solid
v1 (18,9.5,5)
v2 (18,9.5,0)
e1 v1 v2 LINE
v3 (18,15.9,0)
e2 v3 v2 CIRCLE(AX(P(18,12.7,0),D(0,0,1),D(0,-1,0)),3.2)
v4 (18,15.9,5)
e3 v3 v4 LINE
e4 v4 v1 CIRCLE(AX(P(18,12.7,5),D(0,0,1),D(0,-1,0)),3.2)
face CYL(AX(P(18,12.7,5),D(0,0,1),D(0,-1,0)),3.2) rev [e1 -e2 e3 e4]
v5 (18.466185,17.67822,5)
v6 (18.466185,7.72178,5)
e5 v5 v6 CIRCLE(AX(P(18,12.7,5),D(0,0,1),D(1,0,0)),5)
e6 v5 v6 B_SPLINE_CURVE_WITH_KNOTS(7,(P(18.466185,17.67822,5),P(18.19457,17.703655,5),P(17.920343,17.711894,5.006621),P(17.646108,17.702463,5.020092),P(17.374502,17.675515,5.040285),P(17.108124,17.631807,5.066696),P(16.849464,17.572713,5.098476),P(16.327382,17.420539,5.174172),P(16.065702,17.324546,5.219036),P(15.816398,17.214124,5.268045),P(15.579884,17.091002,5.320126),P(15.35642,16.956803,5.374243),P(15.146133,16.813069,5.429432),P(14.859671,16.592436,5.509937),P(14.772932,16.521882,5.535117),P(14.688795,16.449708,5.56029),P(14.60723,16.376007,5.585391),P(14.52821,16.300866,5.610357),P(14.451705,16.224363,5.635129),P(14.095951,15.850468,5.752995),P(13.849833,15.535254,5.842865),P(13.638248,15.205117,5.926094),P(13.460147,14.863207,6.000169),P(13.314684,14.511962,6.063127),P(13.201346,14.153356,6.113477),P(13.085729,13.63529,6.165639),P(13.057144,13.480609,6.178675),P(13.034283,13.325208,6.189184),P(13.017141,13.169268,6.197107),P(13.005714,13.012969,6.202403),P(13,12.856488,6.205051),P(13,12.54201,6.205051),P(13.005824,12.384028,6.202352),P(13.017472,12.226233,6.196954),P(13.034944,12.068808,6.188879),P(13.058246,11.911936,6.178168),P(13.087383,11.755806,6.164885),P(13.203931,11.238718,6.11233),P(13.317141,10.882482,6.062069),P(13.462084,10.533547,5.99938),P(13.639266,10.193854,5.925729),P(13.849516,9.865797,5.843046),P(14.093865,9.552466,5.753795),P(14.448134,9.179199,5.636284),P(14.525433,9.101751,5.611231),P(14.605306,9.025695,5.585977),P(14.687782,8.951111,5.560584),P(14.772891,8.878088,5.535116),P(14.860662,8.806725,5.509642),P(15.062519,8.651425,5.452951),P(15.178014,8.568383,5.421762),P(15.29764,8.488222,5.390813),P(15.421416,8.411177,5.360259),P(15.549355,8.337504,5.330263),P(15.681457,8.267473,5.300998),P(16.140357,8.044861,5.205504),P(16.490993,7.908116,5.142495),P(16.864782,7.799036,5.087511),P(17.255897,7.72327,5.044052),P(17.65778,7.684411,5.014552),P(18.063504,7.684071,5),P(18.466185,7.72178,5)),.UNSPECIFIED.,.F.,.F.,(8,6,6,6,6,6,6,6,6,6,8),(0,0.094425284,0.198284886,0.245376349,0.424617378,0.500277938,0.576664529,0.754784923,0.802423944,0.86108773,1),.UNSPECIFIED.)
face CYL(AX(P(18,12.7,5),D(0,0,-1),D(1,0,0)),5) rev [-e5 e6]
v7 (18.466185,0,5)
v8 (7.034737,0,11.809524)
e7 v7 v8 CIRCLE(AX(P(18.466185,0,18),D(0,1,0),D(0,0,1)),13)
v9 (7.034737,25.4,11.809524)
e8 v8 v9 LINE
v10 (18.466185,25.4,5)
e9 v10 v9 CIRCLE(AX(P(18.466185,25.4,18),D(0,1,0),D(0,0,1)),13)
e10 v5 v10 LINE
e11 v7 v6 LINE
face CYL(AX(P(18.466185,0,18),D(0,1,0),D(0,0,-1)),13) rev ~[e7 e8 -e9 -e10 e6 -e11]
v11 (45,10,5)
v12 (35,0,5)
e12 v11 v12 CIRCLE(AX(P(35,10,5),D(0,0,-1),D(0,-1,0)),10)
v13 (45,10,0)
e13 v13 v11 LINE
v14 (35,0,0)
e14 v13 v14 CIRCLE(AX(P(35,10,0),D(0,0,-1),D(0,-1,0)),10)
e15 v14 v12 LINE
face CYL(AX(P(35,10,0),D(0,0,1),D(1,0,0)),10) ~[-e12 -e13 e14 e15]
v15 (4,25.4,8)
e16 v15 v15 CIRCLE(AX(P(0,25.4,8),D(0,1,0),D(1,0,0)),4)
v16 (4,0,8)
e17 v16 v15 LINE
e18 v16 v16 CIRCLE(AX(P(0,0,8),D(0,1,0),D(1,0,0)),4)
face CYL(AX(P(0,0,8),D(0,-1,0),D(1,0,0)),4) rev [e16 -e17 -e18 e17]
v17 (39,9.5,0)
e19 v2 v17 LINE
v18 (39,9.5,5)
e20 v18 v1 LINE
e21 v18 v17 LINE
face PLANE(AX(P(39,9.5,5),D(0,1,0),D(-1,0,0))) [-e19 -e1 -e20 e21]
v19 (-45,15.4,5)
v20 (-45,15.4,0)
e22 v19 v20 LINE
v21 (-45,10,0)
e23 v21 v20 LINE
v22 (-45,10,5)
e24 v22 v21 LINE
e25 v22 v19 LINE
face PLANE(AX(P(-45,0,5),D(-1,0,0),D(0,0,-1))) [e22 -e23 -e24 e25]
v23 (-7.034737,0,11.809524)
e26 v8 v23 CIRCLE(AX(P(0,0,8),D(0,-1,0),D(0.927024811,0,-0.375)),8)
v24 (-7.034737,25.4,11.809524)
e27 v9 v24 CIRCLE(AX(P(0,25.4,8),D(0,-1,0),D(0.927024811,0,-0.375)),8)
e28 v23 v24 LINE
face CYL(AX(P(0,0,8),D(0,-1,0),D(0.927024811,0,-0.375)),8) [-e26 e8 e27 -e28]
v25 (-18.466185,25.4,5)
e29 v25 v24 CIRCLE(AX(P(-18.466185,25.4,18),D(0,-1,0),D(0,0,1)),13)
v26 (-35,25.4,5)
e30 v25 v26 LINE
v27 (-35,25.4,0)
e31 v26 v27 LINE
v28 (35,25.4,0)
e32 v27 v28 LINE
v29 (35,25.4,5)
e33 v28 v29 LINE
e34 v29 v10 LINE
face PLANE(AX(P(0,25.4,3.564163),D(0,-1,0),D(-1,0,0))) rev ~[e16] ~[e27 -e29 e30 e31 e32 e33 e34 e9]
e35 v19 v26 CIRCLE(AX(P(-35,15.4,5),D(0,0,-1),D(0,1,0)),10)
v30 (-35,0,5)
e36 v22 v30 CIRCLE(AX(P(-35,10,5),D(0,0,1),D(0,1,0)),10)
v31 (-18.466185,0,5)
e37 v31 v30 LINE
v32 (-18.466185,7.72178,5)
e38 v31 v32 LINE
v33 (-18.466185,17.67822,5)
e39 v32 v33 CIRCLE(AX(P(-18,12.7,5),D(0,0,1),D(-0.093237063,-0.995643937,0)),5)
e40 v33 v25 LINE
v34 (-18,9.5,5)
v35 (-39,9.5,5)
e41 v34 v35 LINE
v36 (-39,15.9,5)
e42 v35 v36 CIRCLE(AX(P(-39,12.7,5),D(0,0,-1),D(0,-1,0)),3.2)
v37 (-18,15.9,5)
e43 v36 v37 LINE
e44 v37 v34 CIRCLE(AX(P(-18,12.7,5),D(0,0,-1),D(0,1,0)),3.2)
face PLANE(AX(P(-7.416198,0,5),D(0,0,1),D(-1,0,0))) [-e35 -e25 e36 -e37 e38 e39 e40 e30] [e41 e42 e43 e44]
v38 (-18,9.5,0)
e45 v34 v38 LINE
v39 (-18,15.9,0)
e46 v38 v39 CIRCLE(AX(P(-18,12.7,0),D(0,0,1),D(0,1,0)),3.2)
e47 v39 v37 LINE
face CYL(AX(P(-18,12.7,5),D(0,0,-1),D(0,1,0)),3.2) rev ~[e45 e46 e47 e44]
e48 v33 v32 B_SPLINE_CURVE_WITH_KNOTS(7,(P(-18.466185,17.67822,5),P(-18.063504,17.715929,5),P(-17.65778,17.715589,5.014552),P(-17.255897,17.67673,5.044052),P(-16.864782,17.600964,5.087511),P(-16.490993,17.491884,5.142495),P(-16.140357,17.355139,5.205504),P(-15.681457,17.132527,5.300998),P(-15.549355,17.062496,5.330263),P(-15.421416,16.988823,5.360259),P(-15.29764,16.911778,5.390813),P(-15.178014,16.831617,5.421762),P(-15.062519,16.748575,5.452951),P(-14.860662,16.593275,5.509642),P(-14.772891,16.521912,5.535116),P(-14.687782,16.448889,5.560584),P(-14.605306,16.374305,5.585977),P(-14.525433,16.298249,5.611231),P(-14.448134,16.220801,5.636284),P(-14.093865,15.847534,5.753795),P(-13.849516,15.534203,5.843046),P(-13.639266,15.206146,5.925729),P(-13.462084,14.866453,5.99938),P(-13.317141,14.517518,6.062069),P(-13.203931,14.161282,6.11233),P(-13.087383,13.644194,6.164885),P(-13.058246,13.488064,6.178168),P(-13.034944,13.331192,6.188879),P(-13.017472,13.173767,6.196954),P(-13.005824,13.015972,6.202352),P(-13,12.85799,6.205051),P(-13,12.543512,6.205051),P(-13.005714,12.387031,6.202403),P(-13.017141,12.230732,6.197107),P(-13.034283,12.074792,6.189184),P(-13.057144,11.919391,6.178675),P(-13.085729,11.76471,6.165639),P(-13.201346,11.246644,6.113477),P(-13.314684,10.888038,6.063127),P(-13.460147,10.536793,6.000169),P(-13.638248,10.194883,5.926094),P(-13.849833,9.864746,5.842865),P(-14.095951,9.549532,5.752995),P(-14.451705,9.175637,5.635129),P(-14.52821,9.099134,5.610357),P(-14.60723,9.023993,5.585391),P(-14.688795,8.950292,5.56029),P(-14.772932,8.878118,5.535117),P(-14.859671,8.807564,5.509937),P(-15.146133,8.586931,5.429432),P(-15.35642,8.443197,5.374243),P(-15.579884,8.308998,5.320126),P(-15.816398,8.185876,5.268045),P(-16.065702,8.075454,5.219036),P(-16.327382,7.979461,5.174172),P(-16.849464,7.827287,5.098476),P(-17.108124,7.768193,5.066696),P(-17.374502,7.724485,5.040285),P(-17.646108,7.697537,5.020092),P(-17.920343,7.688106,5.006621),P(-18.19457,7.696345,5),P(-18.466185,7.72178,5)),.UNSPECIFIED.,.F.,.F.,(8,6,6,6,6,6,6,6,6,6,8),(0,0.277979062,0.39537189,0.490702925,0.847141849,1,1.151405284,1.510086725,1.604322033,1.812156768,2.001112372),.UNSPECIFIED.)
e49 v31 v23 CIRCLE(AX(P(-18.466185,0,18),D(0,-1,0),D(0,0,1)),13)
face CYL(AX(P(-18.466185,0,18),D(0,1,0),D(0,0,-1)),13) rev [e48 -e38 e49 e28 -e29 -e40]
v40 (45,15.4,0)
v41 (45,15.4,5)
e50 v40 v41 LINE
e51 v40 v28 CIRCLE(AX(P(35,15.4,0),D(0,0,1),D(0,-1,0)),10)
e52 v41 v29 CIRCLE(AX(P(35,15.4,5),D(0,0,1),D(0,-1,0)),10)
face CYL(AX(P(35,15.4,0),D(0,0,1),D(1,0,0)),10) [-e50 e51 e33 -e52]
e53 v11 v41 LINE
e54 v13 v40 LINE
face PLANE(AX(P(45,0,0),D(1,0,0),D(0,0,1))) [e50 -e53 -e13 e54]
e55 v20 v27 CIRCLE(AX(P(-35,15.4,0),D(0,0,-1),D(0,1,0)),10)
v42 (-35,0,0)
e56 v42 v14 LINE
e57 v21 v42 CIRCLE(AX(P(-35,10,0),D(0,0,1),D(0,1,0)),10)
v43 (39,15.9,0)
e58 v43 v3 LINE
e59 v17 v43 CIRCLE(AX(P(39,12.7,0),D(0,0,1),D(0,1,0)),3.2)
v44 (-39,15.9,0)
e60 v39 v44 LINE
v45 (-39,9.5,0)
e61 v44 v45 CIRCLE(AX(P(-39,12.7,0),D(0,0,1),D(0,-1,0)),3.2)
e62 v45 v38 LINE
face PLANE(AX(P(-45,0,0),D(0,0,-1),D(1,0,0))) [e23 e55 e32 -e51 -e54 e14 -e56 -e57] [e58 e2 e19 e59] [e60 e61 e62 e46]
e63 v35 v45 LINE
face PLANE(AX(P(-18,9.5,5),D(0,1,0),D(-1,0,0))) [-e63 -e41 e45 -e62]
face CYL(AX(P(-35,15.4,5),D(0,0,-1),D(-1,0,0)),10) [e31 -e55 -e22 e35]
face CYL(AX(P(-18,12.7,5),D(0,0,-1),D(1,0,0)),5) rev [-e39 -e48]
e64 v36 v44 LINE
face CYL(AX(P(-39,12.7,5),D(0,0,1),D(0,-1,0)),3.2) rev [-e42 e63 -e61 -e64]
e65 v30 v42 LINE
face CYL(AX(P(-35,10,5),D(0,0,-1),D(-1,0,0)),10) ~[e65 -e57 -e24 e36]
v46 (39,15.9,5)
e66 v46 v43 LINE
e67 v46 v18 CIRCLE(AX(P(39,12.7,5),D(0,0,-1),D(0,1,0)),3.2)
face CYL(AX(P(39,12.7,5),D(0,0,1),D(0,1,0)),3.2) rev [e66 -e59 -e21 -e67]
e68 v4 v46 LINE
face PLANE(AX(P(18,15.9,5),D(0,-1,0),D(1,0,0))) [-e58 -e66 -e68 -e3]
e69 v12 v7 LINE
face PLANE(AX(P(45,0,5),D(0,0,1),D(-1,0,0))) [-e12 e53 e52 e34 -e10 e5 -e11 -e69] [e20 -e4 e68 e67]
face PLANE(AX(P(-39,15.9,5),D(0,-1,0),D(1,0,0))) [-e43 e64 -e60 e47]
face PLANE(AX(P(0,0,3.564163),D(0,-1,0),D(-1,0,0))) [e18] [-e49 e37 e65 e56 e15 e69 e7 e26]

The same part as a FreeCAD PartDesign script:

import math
import FreeCAD as App
import Part
import Sketcher
from FreeCAD import Vector
Q = App.Units.Quantity


def edges_at(feature, points):
    """Names of the edges that pass closest to the given points."""
    edges = feature.Shape.Edges
    near = lambda p: min(range(len(edges)), key=lambda i: edges[i].distToShape(Part.Vertex(*p))[0])
    return sorted({f"Edge{near(p) + 1}" for p in points})

doc = App.newDocument("Part")
body = doc.addObject("PartDesign::Body", "Body")

sketch1 = doc.addObject("Sketcher::SketchObject", "Sketch")
body.addObject(sketch1)
sketch1.AttachmentSupport = (doc.XZ_Plane, [""])
sketch1.MapMode = "FlatFace"
sketch1.addGeometry(Part.LineSegment(Vector(45, 0, 0), Vector(-45, 0, 0)), False)
sketch1.addGeometry(Part.LineSegment(Vector(-45, 0, 0), Vector(-45, 5, 0)), False)
sketch1.addGeometry(Part.LineSegment(Vector(-45, 5, 0), Vector(-7.4, 5, 0)), False)
sketch1.addGeometry(Part.ArcOfCircle(Part.Circle(Vector(0, 8, 0), Vector(0, 0, 1), 8), math.radians(-22), math.radians(202)), False)
sketch1.addGeometry(Part.LineSegment(Vector(7.4, 5, 0), Vector(45, 5, 0)), False)
sketch1.addGeometry(Part.LineSegment(Vector(45, 5, 0), Vector(45, 0, 0)), False)
sketch1.addGeometry(Part.Circle(Vector(0, 8, 0), Vector(0, 0, 1), 4), False)
sketch1.addConstraint(Sketcher.Constraint("Coincident", 0, 2, 1, 1))
sketch1.addConstraint(Sketcher.Constraint("Coincident", 1, 2, 2, 1))
sketch1.addConstraint(Sketcher.Constraint("Coincident", 2, 2, 3, 2))
sketch1.addConstraint(Sketcher.Constraint("Coincident", 3, 1, 4, 1))
sketch1.addConstraint(Sketcher.Constraint("Coincident", 4, 2, 5, 1))
sketch1.addConstraint(Sketcher.Constraint("Coincident", 5, 2, 0, 1))
sketch1.addConstraint(Sketcher.Constraint("Horizontal", 0))
sketch1.addConstraint(Sketcher.Constraint("Vertical", 1))
sketch1.addConstraint(Sketcher.Constraint("Horizontal", 2))
sketch1.addConstraint(Sketcher.Constraint("Horizontal", 4))
sketch1.addConstraint(Sketcher.Constraint("Vertical", 5))
sketch1.addConstraint(Sketcher.Constraint("Coincident", 6, 3, 3, 3))
sketch1.addConstraint(Sketcher.Constraint("Symmetric", 0, 2, 5, 2, -1, 1))
sketch1.addConstraint(Sketcher.Constraint("Symmetric", 2, 2, 3, 1, -2))
sketch1.addConstraint(Sketcher.Constraint("Diameter", 6, Q("8 mm")))
sketch1.addConstraint(Sketcher.Constraint("Radius", 3, Q("8 mm")))
sketch1.addConstraint(Sketcher.Constraint("DistanceX", 0, 2, 0, 1, Q("90 mm")))
sketch1.addConstraint(Sketcher.Constraint("DistanceY", 1, 1, 1, 2, Q("5 mm")))
sketch1.addConstraint(Sketcher.Constraint("DistanceY", -1, 1, 3, 3, Q("8 mm")))
pad1 = doc.addObject("PartDesign::Pad", "Pad")
body.addObject(pad1)
pad1.Profile = sketch1
pad1.Length = 25.4
pad1.Reversed = True
doc.recompute()

fillet = doc.addObject("PartDesign::Fillet", "Fillet")
body.addObject(fillet)
fillet.Base = (pad1, edges_at(pad1, [(7.416, 12.7, 5), (-7.416, 12.7, 5)]))
fillet.Radius = 13

sketch2 = doc.addObject("Sketcher::SketchObject", "Sketch001")
body.addObject(sketch2)
sketch2.AttachmentSupport = (doc.XY_Plane, [""])
sketch2.MapMode = "FlatFace"
sketch2.AttachmentOffset = App.Placement(Vector(0, 0, 5), App.Rotation())
sketch2.addGeometry(Part.LineSegment(Vector(-18, 15.9, 0), Vector(-39, 15.9, 0)), False)
sketch2.addGeometry(Part.ArcOfCircle(Part.Circle(Vector(-39, 12.7, 0), Vector(0, 0, 1), 3.2), math.radians(90), math.radians(270)), False)
sketch2.addGeometry(Part.LineSegment(Vector(-39, 9.5, 0), Vector(-18, 9.5, 0)), False)
sketch2.addGeometry(Part.ArcOfCircle(Part.Circle(Vector(-18, 12.7, 0), Vector(0, 0, 1), 3.2), math.radians(-90), math.radians(90)), False)
sketch2.addGeometry(Part.LineSegment(Vector(18, 9.5, 0), Vector(39, 9.5, 0)), False)
sketch2.addGeometry(Part.ArcOfCircle(Part.Circle(Vector(39, 12.7, 0), Vector(0, 0, 1), 3.2), math.radians(-90), math.radians(90)), False)
sketch2.addGeometry(Part.LineSegment(Vector(39, 15.9, 0), Vector(18, 15.9, 0)), False)
sketch2.addGeometry(Part.ArcOfCircle(Part.Circle(Vector(18, 12.7, 0), Vector(0, 0, 1), 3.2), math.radians(90), math.radians(270)), False)
sketch2.addConstraint(Sketcher.Constraint("Tangent", 0, 2, 1, 1))
sketch2.addConstraint(Sketcher.Constraint("Tangent", 1, 2, 2, 1))
sketch2.addConstraint(Sketcher.Constraint("Tangent", 2, 2, 3, 1))
sketch2.addConstraint(Sketcher.Constraint("Tangent", 3, 2, 0, 1))
sketch2.addConstraint(Sketcher.Constraint("Tangent", 4, 2, 5, 1))
sketch2.addConstraint(Sketcher.Constraint("Tangent", 5, 2, 6, 1))
sketch2.addConstraint(Sketcher.Constraint("Tangent", 6, 2, 7, 1))
sketch2.addConstraint(Sketcher.Constraint("Tangent", 7, 2, 4, 1))
sketch2.addConstraint(Sketcher.Constraint("Horizontal", 0))
sketch2.addConstraint(Sketcher.Constraint("Horizontal", 2))
sketch2.addConstraint(Sketcher.Constraint("Horizontal", 4))
sketch2.addConstraint(Sketcher.Constraint("Horizontal", 6))
sketch2.addConstraint(Sketcher.Constraint("Equal", 3, 5))
sketch2.addConstraint(Sketcher.Constraint("Symmetric", 1, 3, 5, 3, -2))
sketch2.addConstraint(Sketcher.Constraint("Equal", 2, 4))
sketch2.addConstraint(Sketcher.Constraint("Radius", 1, Q("3.2 mm")))
sketch2.addConstraint(Sketcher.Constraint("DistanceX", 0, 2, 0, 1, Q("21 mm")))
sketch2.addConstraint(Sketcher.Constraint("DistanceX", 1, 3, -1, 1, Q("39 mm")))
sketch2.addConstraint(Sketcher.Constraint("DistanceY", -1, 1, 1, 3, Q("12.7 mm")))
pocket1 = doc.addObject("PartDesign::Pocket", "Pocket")
body.addObject(pocket1)
pocket1.Profile = sketch2
pocket1.Type = "ThroughAll"
pocket1.Midplane = True

sketch3 = doc.addObject("Sketcher::SketchObject", "Sketch002")
body.addObject(sketch3)
sketch3.AttachmentSupport = (doc.XY_Plane, [""])
sketch3.MapMode = "FlatFace"
sketch3.AttachmentOffset = App.Placement(Vector(0, 0, 5), App.Rotation())
sketch3.addGeometry(Part.Circle(Vector(-18, 13, 0), Vector(0, 0, 1), 5), False)
sketch3.addGeometry(Part.Circle(Vector(18, 13, 0), Vector(0, 0, 1), 5), False)
sketch3.addConstraint(Sketcher.Constraint("Equal", 0, 1))
sketch3.addConstraint(Sketcher.Constraint("Symmetric", 0, 3, 1, 3, -2))
sketch3.addConstraint(Sketcher.Constraint("Diameter", 0, Q("10 mm")))
sketch3.addConstraint(Sketcher.Constraint("DistanceX", 0, 3, -1, 1, Q("18 mm")))
sketch3.addConstraint(Sketcher.Constraint("DistanceY", -1, 1, 0, 3, Q("12.7 mm")))
pocket2 = doc.addObject("PartDesign::Pocket", "Pocket001")
body.addObject(pocket2)
pocket2.Profile = sketch3
pocket2.Length = 25.4
pocket2.Reversed = True
doc.recompute()

fillet2 = doc.addObject("PartDesign::Fillet", "Fillet001")
body.addObject(fillet2)
fillet2.Base = (pocket2, edges_at(pocket2, [
    (-45, 25.4, 2.5),
    (45, 25.4, 2.5),
    (-45, 0, 2.5),
    (45, 0, 2.5),
]))
fillet2.Radius = 10

doc.recompute()
